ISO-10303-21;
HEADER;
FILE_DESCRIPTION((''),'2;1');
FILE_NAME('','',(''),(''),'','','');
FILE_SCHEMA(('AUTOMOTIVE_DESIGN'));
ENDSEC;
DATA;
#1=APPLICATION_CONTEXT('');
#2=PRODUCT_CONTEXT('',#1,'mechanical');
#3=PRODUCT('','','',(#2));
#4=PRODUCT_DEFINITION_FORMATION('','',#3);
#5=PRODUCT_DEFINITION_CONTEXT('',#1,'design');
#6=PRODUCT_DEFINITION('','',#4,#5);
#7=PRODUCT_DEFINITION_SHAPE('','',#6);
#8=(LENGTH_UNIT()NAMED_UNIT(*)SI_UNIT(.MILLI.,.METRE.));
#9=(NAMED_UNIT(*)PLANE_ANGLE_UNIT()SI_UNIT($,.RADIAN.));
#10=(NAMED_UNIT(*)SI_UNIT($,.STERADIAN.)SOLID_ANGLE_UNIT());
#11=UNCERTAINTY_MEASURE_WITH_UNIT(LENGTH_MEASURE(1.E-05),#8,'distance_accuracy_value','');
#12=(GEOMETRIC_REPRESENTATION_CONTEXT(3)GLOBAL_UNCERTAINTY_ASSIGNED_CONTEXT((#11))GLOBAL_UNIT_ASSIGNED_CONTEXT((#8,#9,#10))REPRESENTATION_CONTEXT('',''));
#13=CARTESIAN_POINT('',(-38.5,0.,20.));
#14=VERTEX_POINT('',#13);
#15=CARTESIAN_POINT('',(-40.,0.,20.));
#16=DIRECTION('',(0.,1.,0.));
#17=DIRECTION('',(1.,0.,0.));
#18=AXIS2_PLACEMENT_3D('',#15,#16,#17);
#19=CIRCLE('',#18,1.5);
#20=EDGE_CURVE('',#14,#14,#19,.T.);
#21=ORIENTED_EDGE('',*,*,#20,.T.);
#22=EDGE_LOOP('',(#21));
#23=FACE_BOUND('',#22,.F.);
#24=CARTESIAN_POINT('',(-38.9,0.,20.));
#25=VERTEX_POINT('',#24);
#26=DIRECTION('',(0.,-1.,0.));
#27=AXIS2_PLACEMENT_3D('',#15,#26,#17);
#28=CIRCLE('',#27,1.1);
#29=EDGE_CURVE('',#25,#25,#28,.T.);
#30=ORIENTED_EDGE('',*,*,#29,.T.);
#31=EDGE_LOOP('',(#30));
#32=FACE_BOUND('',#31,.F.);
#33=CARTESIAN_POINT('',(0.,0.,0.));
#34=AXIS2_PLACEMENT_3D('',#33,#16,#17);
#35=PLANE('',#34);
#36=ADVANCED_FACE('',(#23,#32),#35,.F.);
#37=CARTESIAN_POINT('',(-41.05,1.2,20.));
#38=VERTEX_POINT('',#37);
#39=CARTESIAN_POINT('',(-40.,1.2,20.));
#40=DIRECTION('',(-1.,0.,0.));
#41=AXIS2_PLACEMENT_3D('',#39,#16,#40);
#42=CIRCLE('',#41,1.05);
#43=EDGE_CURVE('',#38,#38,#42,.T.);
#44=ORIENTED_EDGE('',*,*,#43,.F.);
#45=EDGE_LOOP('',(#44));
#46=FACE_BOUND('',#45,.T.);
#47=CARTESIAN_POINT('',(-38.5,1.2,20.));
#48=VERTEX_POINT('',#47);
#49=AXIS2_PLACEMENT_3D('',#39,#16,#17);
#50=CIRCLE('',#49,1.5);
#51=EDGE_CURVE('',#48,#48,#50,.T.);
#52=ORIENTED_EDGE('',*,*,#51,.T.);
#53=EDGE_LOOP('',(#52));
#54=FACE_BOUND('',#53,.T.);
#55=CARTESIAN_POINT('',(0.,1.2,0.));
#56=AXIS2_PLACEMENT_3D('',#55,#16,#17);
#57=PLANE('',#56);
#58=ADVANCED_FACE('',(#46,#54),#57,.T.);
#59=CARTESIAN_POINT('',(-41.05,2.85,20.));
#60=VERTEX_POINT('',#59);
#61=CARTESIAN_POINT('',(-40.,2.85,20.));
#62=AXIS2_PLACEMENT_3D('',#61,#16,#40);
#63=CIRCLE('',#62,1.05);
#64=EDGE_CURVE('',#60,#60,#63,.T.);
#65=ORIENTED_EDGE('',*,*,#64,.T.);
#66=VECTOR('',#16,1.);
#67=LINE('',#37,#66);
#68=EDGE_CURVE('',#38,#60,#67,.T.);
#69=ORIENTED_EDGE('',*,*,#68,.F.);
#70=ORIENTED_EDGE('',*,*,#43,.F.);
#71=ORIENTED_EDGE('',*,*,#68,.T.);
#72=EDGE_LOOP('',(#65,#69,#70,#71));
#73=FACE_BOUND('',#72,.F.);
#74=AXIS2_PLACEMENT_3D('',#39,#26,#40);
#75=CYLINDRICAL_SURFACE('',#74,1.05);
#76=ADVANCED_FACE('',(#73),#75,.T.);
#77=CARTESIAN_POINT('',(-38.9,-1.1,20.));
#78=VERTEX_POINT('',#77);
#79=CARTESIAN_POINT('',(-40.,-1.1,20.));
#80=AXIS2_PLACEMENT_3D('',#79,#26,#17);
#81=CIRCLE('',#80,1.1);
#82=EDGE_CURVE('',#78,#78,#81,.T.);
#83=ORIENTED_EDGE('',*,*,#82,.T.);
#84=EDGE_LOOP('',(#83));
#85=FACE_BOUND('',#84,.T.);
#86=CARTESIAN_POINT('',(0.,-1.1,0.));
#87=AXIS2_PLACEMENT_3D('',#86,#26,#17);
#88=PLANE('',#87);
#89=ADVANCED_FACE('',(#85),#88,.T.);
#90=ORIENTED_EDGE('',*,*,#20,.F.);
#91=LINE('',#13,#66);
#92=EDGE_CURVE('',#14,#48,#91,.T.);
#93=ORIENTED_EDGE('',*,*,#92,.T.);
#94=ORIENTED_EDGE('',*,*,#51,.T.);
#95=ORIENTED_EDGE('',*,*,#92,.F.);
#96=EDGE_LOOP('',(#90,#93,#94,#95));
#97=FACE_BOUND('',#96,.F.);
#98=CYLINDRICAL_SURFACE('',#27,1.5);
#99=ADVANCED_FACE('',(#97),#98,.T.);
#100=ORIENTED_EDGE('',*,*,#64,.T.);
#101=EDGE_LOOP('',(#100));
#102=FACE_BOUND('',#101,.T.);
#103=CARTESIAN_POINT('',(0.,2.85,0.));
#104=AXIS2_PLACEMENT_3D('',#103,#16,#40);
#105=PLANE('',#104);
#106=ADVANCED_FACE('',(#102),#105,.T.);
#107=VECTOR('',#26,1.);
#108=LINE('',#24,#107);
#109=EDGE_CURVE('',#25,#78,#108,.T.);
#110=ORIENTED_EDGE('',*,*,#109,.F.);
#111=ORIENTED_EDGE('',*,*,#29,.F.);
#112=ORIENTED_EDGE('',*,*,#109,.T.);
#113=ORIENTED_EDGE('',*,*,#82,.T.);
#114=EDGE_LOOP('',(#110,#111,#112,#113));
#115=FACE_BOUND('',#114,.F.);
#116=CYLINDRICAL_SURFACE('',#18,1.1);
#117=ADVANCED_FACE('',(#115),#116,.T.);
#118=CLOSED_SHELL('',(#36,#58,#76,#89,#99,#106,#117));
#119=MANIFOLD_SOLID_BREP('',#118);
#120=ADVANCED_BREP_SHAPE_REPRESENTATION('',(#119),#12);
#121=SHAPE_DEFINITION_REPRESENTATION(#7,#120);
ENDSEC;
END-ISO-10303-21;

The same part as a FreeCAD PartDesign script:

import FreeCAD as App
import Part
import Sketcher
Q = App.Units.Quantity

doc = App.newDocument("Part")
body = doc.addObject("PartDesign::Body", "Body")

# Sketch on XZ plane
sketch1 = body.newObject("Sketcher::SketchObject", "Sketch")
sketch1.AttachmentSupport = (doc.getObject("XZ_Plane"), [""])
sketch1.MapMode = "FlatFace"
sketch1.addGeometry(Part.Circle(App.Vector(-40, 20, 0), App.Vector(0, 0, 1), 1.5), False)
sketch1.addConstraint([
    Sketcher.Constraint("Diameter", 0, Q("3 mm")),
    Sketcher.Constraint("DistanceX", 0, 3, -1, 1, Q("40 mm")),
    Sketcher.Constraint("DistanceY", -1, 1, 0, 3, Q("20 mm")),
])
pad1 = body.newObject("PartDesign::Pad", "Pad")
pad1.Profile = sketch1
pad1.Length = 1.2
pad1.Reversed = True

# Sketch on XZ plane
sketch2 = body.newObject("Sketcher::SketchObject", "Sketch001")
sketch2.AttachmentSupport = (doc.getObject("XZ_Plane"), [""])
sketch2.MapMode = "FlatFace"
sketch2.addGeometry(Part.Circle(App.Vector(-40, 20, 0), App.Vector(0, 0, 1), 1.1), False)
sketch2.addConstraint([
    Sketcher.Constraint("Diameter", 0, Q("2.2 mm")),
    Sketcher.Constraint("DistanceX", 0, 3, -1, 1, Q("40 mm")),
    Sketcher.Constraint("DistanceY", -1, 1, 0, 3, Q("20 mm")),
])
pad2 = body.newObject("PartDesign::Pad", "Pad001")
pad2.Profile = sketch2
pad2.Length = 1.1

# Sketch on XZ plane
sketch3 = body.newObject("Sketcher::SketchObject", "Sketch002")
sketch3.AttachmentSupport = (doc.getObject("XZ_Plane"), [""])
sketch3.MapMode = "FlatFace"
sketch3.AttachmentOffset = App.Placement(App.Vector(0, 0, -1.2), App.Rotation())
sketch3.addGeometry(Part.Circle(App.Vector(-40, 20, 0), App.Vector(0, 0, 1), 1.1), False)
sketch3.addConstraint([
    Sketcher.Constraint("Diameter", 0, Q("2.1 mm")),
    Sketcher.Constraint("DistanceX", 0, 3, -1, 1, Q("40 mm")),
    Sketcher.Constraint("DistanceY", -1, 1, 0, 3, Q("20 mm")),
])
pad3 = body.newObject("PartDesign::Pad", "Pad002")
pad3.Profile = sketch3
pad3.Length = 1.65
pad3.Reversed = True

doc.recompute()
